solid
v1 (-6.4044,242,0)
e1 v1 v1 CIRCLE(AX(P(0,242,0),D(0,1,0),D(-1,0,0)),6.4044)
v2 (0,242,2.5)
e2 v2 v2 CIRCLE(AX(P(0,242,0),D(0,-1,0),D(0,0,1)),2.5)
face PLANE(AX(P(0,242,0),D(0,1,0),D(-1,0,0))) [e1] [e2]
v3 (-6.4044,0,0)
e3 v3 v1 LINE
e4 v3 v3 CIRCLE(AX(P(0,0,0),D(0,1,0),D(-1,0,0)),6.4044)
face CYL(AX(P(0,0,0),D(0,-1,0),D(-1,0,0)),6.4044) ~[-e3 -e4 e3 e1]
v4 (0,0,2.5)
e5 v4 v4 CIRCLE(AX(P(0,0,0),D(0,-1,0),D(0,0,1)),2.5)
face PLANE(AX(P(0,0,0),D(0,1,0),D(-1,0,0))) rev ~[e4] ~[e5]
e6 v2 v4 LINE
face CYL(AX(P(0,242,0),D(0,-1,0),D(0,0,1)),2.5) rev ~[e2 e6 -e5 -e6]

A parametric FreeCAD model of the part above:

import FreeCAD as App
import Part
import Sketcher
from FreeCAD import Vector
Q = App.Units.Quantity

doc = App.newDocument("Part")
body = doc.addObject("PartDesign::Body", "Body")

# Sketch on XZ plane
sketch1 = body.newObject("Sketcher::SketchObject", "Sketch")
sketch1.AttachmentSupport = (doc.getObject("XZ_Plane"), [""])
sketch1.MapMode = "FlatFace"
sketch1.addGeometry(Part.Circle(Vector(0, 0, 0), Vector(0, 0, 1), 6), False)
sketch1.addConstraint(Sketcher.Constraint("Coincident", 0, 3, -1, 1))
sketch1.addConstraint(Sketcher.Constraint("Diameter", 0, Q("12.8088 mm")))
pad1 = body.newObject("PartDesign::Pad", "Pad")
pad1.Profile = sketch1
pad1.Length = 242
pad1.Reversed = True

# Sketch on XZ plane
sketch2 = body.newObject("Sketcher::SketchObject", "Sketch001")
sketch2.AttachmentSupport = (doc.getObject("XZ_Plane"), [""])
sketch2.MapMode = "FlatFace"
sketch2.AttachmentOffset = App.Placement(Vector(0, 0, -242), App.Rotation())
sketch2.addGeometry(Part.Circle(Vector(0, 0, 0), Vector(0, 0, 1), 2.5), False)
sketch2.addConstraint(Sketcher.Constraint("Coincident", 0, 3, -1, 1))
sketch2.addConstraint(Sketcher.Constraint("Diameter", 0, Q("5 mm")))
doc.recompute()
hole = body.newObject("PartDesign::Hole", "Hole")
hole.Profile = sketch2
hole.ThreadType = "None"
hole.Diameter = 5
hole.DepthType = "ThroughAll"
hole.Reversed = True

doc.recompute()
